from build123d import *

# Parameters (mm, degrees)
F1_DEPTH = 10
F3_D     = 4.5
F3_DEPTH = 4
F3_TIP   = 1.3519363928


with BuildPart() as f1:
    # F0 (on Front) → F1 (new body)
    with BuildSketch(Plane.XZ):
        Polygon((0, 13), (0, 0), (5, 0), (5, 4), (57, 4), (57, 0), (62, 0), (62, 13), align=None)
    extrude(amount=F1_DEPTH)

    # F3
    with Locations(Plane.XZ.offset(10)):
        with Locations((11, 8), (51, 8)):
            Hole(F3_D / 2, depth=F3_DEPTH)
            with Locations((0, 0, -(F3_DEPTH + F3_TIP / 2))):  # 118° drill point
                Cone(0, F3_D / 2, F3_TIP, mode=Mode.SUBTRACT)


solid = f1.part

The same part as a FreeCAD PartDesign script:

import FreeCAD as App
import Part
import Sketcher
from FreeCAD import Vector
Q = App.Units.Quantity


def add_polygon(sketch, points):
    """Adds a closed chain of lines whose ends are joined by coincident constraints."""
    first, n = sketch.GeometryCount, len(points)
    for a, b in zip(points, points[1:] + points[:1]):
        sketch.addGeometry(Part.LineSegment(App.Vector(*a, 0), App.Vector(*b, 0)), False)
    for i in range(n):
        sketch.addConstraint(Sketcher.Constraint("Coincident", first + i, 2, first + (i + 1) % n, 1))

doc = App.newDocument("Part")
body = doc.addObject("PartDesign::Body", "Body")

# Sketch on XZ plane
sketch1 = body.newObject("Sketcher::SketchObject", "Sketch")
sketch1.AttachmentSupport = (doc.getObject("XZ_Plane"), [""])
sketch1.MapMode = "FlatFace"
add_polygon(sketch1, [(0, 13), (0, 0), (5, 0), (5, 4), (57, 4), (57, 0), (62, 0), (62, 13)])  # lines 0-7
sketch1.addConstraint([
    Sketcher.Constraint("Vertical", 0),
    Sketcher.Constraint("Horizontal", 1),
    Sketcher.Constraint("Vertical", 2),
    Sketcher.Constraint("Horizontal", 3),
    Sketcher.Constraint("Vertical", 4),
    Sketcher.Constraint("Horizontal", 5),
    Sketcher.Constraint("Vertical", 6),
    Sketcher.Constraint("Horizontal", 7),
    Sketcher.Constraint("Coincident", 0, 2, -1, 1),
    Sketcher.Constraint("PointOnObject", 4, 2, -1),
    Sketcher.Constraint("Equal", 1, 5),
    Sketcher.Constraint("DistanceX", 1, 1, 1, 2, Q("5 mm")),
    Sketcher.Constraint("DistanceX", 3, 1, 3, 2, Q("52 mm")),
    Sketcher.Constraint("DistanceY", 0, 2, 0, 1, Q("13 mm")),
    Sketcher.Constraint("DistanceY", 2, 1, 2, 2, Q("4 mm")),
])
pad1 = body.newObject("PartDesign::Pad", "Pad")
pad1.Profile = sketch1
pad1.Length = 10

# Sketch on XZ plane
sketch2 = body.newObject("Sketcher::SketchObject", "Sketch001")
sketch2.AttachmentSupport = (doc.getObject("XZ_Plane"), [""])
sketch2.MapMode = "FlatFace"
sketch2.AttachmentOffset = App.Placement(Vector(0, 0, 10), App.Rotation())
sketch2.addGeometry([
    Part.Circle(Vector(11, 8, 0), Vector(0, 0, 1), 2.25),
    Part.Circle(Vector(51, 8, 0), Vector(0, 0, 1), 2.25),
], False)
sketch2.addConstraint([
    Sketcher.Constraint("Equal", 0, 1),
    Sketcher.Constraint("Horizontal", 0, 3, 1, 3),
    Sketcher.Constraint("Diameter", 0, Q("4.5 mm")),
    Sketcher.Constraint("DistanceX", -1, 1, 0, 3, Q("11 mm")),
    Sketcher.Constraint("DistanceY", -1, 1, 0, 3, Q("8 mm")),
    Sketcher.Constraint("DistanceX", -1, 1, 1, 3, Q("51 mm")),
])
doc.recompute()
hole = body.newObject("PartDesign::Hole", "Hole")
hole.Profile = sketch2
hole.ThreadType = "None"
hole.Diameter = 4.5
hole.DepthType = "Dimension"
hole.Depth = 4
hole.DrillPoint = "Angled"
hole.DrillPointAngle = 118

doc.recompute()
